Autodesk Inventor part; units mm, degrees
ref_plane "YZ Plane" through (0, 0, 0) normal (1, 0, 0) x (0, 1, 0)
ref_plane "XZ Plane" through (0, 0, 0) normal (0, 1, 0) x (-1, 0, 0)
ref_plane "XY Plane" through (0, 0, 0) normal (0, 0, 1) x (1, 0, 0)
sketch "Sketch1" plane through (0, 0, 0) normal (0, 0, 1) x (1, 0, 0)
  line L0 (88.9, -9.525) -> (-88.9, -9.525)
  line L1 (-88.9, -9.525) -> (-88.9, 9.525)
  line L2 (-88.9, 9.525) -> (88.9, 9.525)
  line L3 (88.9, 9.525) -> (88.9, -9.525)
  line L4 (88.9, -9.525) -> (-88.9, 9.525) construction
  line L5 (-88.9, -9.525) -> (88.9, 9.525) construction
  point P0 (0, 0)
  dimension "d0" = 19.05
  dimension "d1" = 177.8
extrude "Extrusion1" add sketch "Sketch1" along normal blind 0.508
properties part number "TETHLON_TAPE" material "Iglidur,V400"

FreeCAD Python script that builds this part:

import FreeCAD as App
import Part
import Sketcher

V = App.Vector
Q = App.Units.Quantity

doc = App.newDocument("Part")
body = doc.addObject("PartDesign::Body", "Body")

sketch1 = body.newObject("Sketcher::SketchObject", "Sketch")
sketch1.AttachmentSupport = (doc.getObject("XY_Plane"), [""])
sketch1.MapMode = "FlatFace"
sketch1.addGeometry([
    Part.LineSegment(V(-88.9, -9.525, 0), V(88.9, -9.525, 0)),
    Part.LineSegment(V(88.9, -9.525, 0), V(88.9, 9.525, 0)),
    Part.LineSegment(V(88.9, 9.525, 0), V(-88.9, 9.525, 0)),
    Part.LineSegment(V(-88.9, 9.525, 0), V(-88.9, -9.525, 0)),
], False)
sketch1.addConstraint([
    Sketcher.Constraint("Coincident", 0, 2, 1, 1),
    Sketcher.Constraint("Coincident", 1, 2, 2, 1),
    Sketcher.Constraint("Coincident", 2, 2, 3, 1),
    Sketcher.Constraint("Coincident", 3, 2, 0, 1),
    Sketcher.Constraint("Horizontal", 0),
    Sketcher.Constraint("Vertical", 1),
    Sketcher.Constraint("Horizontal", 2),
    Sketcher.Constraint("Vertical", 3),
    Sketcher.Constraint("Symmetric", 0, 2, 2, 2, -1, 1),
    Sketcher.Constraint("DistanceX", 0, 1, 0, 2, Q("7 in")),
    Sketcher.Constraint("DistanceY", 1, 1, 1, 2, Q("0.75 in")),
])
pad1 = body.newObject("PartDesign::Pad", "Pad")
pad1.Profile = sketch1
pad1.Length = Q("0.02 in")

doc.recompute()
